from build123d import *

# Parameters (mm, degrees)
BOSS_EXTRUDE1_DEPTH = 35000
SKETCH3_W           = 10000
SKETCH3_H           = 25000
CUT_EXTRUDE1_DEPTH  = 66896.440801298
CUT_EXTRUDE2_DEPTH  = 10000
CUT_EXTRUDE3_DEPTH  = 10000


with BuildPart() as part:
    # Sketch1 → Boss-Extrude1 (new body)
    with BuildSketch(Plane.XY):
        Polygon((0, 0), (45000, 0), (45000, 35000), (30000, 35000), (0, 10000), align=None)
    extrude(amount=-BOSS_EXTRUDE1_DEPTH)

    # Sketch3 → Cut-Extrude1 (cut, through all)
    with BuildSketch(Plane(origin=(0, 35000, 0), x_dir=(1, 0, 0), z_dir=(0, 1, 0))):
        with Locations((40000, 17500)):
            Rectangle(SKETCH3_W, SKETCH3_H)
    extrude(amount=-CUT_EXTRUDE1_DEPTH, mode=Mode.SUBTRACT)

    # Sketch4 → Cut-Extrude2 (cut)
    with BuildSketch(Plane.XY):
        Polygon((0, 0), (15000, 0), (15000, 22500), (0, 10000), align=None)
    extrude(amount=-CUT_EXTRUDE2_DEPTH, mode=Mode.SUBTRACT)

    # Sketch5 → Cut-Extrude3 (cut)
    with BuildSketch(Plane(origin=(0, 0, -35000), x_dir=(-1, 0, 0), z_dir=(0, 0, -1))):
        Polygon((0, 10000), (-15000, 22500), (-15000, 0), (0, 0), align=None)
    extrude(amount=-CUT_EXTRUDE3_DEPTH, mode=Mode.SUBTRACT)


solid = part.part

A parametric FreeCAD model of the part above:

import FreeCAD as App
import Part
import Sketcher
from FreeCAD import Vector

doc = App.newDocument("Part")
body = doc.addObject("PartDesign::Body", "Body")

# Sketch on XY plane
sketch1 = body.newObject("Sketcher::SketchObject", "Sketch")
sketch1.AttachmentSupport = (doc.getObject("XY_Plane"), [""])
sketch1.MapMode = "FlatFace"
sketch1.addGeometry(Part.LineSegment(Vector(0, 0, 0), Vector(45000, 0, 0)), False)
sketch1.addGeometry(Part.LineSegment(Vector(45000, 0, 0), Vector(45000, 35000, 0)), False)
sketch1.addGeometry(Part.LineSegment(Vector(45000, 35000, 0), Vector(30000, 35000, 0)), False)
sketch1.addGeometry(Part.LineSegment(Vector(30000, 35000, 0), Vector(0, 10000, 0)), False)
sketch1.addGeometry(Part.LineSegment(Vector(0, 10000, 0), Vector(0, 0, 0)), False)
sketch1.addConstraint(Sketcher.Constraint("Coincident", 0, 2, 1, 1))
sketch1.addConstraint(Sketcher.Constraint("Coincident", 1, 2, 2, 1))
sketch1.addConstraint(Sketcher.Constraint("Coincident", 2, 2, 3, 1))
sketch1.addConstraint(Sketcher.Constraint("Coincident", 3, 2, 4, 1))
sketch1.addConstraint(Sketcher.Constraint("Coincident", 4, 2, 0, 1))
sketch1.addConstraint(Sketcher.Constraint("Horizontal", 0))
sketch1.addConstraint(Sketcher.Constraint("Vertical", 1))
sketch1.addConstraint(Sketcher.Constraint("Horizontal", 2))
sketch1.addConstraint(Sketcher.Constraint("Vertical", 4))
sketch1.addConstraint(Sketcher.Constraint("Coincident", 4, 2, -1, 1))
sketch1.addConstraint(Sketcher.Constraint("DistanceX", 0, 1, 0, 2, 45000.0))
sketch1.addConstraint(Sketcher.Constraint("DistanceX", 2, 2, 2, 1, 15000.0))
sketch1.addConstraint(Sketcher.Constraint("DistanceY", 1, 1, 1, 2, 35000.0))
sketch1.addConstraint(Sketcher.Constraint("DistanceY", 4, 2, 4, 1, 10000.0))
pad1 = body.newObject("PartDesign::Pad", "Pad")
pad1.Profile = sketch1
pad1.Length = 35000
pad1.Reversed = True

# Sketch on XZ plane
sketch2 = body.newObject("Sketcher::SketchObject", "Sketch001")
sketch2.AttachmentSupport = (doc.getObject("XZ_Plane"), [""])
sketch2.MapMode = "FlatFace"
sketch2.AttachmentOffset = App.Placement(Vector(0, 0, -35000), App.Rotation())
sketch2.addGeometry(Part.LineSegment(Vector(35000, -30000, 0), Vector(35000, -5000, 0)), False)
sketch2.addGeometry(Part.LineSegment(Vector(35000, -5000, 0), Vector(45000, -5000, 0)), False)
sketch2.addGeometry(Part.LineSegment(Vector(45000, -5000, 0), Vector(45000, -30000, 0)), False)
sketch2.addGeometry(Part.LineSegment(Vector(45000, -30000, 0), Vector(35000, -30000, 0)), False)
sketch2.addConstraint(Sketcher.Constraint("Coincident", 0, 2, 1, 1))
sketch2.addConstraint(Sketcher.Constraint("Coincident", 1, 2, 2, 1))
sketch2.addConstraint(Sketcher.Constraint("Coincident", 2, 2, 3, 1))
sketch2.addConstraint(Sketcher.Constraint("Coincident", 3, 2, 0, 1))
sketch2.addConstraint(Sketcher.Constraint("Vertical", 0))
sketch2.addConstraint(Sketcher.Constraint("Horizontal", 1))
sketch2.addConstraint(Sketcher.Constraint("Vertical", 2))
sketch2.addConstraint(Sketcher.Constraint("Horizontal", 3))
sketch2.addConstraint(Sketcher.Constraint("DistanceX", 1, 1, 1, 2, 10000.0))
sketch2.addConstraint(Sketcher.Constraint("DistanceY", 0, 1, 0, 2, 25000.0))
sketch2.addConstraint(Sketcher.Constraint("DistanceX", -1, 1, 0, 2, 35000.0))
sketch2.addConstraint(Sketcher.Constraint("DistanceY", 0, 2, -1, 1, 5000.0))
pocket1 = body.newObject("PartDesign::Pocket", "Pocket")
pocket1.Profile = sketch2
pocket1.Type = "ThroughAll"
pocket1.Reversed = True

# Sketch on XY plane
sketch3 = body.newObject("Sketcher::SketchObject", "Sketch002")
sketch3.AttachmentSupport = (doc.getObject("XY_Plane"), [""])
sketch3.MapMode = "FlatFace"
sketch3.addGeometry(Part.LineSegment(Vector(0, 0, 0), Vector(15000, 0, 0)), False)
sketch3.addGeometry(Part.LineSegment(Vector(15000, 0, 0), Vector(15000, 22500, 0)), False)
sketch3.addGeometry(Part.LineSegment(Vector(15000, 22500, 0), Vector(0, 10000, 0)), False)
sketch3.addGeometry(Part.LineSegment(Vector(0, 10000, 0), Vector(0, 0, 0)), False)
sketch3.addConstraint(Sketcher.Constraint("Coincident", 0, 2, 1, 1))
sketch3.addConstraint(Sketcher.Constraint("Coincident", 1, 2, 2, 1))
sketch3.addConstraint(Sketcher.Constraint("Coincident", 2, 2, 3, 1))
sketch3.addConstraint(Sketcher.Constraint("Coincident", 3, 2, 0, 1))
sketch3.addConstraint(Sketcher.Constraint("Horizontal", 0))
sketch3.addConstraint(Sketcher.Constraint("Vertical", 1))
sketch3.addConstraint(Sketcher.Constraint("Vertical", 3))
sketch3.addConstraint(Sketcher.Constraint("Coincident", 3, 2, -1, 1))
sketch3.addConstraint(Sketcher.Constraint("DistanceX", 0, 1, 0, 2, 15000.0))
sketch3.addConstraint(Sketcher.Constraint("DistanceY", 1, 1, 1, 2, 22500.0))
sketch3.addConstraint(Sketcher.Constraint("DistanceY", 3, 2, 3, 1, 10000.0))
pocket2 = body.newObject("PartDesign::Pocket", "Pocket001")
pocket2.Profile = sketch3
pocket2.Length = 10000

# Sketch on XY plane
sketch4 = body.newObject("Sketcher::SketchObject", "Sketch003")
sketch4.AttachmentSupport = (doc.getObject("XY_Plane"), [""])
sketch4.MapMode = "FlatFace"
sketch4.AttachmentOffset = App.Placement(Vector(0, 0, -35000), App.Rotation())
sketch4.addGeometry(Part.LineSegment(Vector(0, 10000, 0), Vector(15000, 22500, 0)), False)
sketch4.addGeometry(Part.LineSegment(Vector(15000, 22500, 0), Vector(15000, 0, 0)), False)
sketch4.addGeometry(Part.LineSegment(Vector(15000, 0, 0), Vector(0, 0, 0)), False)
sketch4.addGeometry(Part.LineSegment(Vector(0, 0, 0), Vector(0, 10000, 0)), False)
sketch4.addConstraint(Sketcher.Constraint("Coincident", 0, 2, 1, 1))
sketch4.addConstraint(Sketcher.Constraint("Coincident", 1, 2, 2, 1))
sketch4.addConstraint(Sketcher.Constraint("Coincident", 2, 2, 3, 1))
sketch4.addConstraint(Sketcher.Constraint("Coincident", 3, 2, 0, 1))
sketch4.addConstraint(Sketcher.Constraint("Vertical", 1))
sketch4.addConstraint(Sketcher.Constraint("Horizontal", 2))
sketch4.addConstraint(Sketcher.Constraint("Vertical", 3))
sketch4.addConstraint(Sketcher.Constraint("Coincident", 2, 2, -1, 1))
sketch4.addConstraint(Sketcher.Constraint("DistanceX", 2, 2, 2, 1, 15000.0))
sketch4.addConstraint(Sketcher.Constraint("DistanceY", 1, 2, 1, 1, 22500.0))
sketch4.addConstraint(Sketcher.Constraint("DistanceY", 3, 1, 3, 2, 10000.0))
pocket3 = body.newObject("PartDesign::Pocket", "Pocket002")
pocket3.Profile = sketch4
pocket3.Length = 10000
pocket3.Reversed = True

doc.recompute()
